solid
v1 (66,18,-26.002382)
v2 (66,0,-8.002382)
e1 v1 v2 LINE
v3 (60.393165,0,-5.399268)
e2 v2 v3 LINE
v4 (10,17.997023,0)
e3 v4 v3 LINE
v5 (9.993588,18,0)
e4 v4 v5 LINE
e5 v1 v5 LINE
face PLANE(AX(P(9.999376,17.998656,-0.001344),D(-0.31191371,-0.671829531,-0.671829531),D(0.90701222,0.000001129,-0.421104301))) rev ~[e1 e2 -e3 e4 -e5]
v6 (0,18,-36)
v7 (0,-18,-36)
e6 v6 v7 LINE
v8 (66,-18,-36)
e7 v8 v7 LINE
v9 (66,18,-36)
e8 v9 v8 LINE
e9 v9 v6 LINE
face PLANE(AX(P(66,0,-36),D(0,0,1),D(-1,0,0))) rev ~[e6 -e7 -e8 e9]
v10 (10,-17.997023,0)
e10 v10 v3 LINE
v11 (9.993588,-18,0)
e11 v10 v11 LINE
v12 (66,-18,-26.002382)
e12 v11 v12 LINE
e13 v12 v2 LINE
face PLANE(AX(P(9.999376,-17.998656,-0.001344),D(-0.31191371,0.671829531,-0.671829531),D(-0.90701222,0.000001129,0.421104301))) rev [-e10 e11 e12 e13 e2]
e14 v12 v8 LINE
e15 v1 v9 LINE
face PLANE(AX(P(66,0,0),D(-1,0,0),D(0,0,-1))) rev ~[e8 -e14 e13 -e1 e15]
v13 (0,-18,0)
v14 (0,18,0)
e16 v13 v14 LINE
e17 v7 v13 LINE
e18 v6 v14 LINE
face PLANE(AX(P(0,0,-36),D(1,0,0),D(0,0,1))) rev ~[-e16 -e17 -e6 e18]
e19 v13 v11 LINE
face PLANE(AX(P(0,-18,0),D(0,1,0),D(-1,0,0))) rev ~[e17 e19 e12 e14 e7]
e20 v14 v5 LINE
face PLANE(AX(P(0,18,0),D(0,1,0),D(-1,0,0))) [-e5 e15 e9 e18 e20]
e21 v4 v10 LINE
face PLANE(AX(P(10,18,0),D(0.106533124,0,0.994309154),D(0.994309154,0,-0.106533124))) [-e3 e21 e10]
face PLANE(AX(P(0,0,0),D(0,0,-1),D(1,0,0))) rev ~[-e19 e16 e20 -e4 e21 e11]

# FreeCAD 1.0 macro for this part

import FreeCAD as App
import Part
import Sketcher
from FreeCAD import Vector


def add_polygon(sketch, points):
    """Adds a closed chain of lines whose ends are joined by coincident constraints."""
    first, n = sketch.GeometryCount, len(points)
    for a, b in zip(points, points[1:] + points[:1]):
        sketch.addGeometry(Part.LineSegment(App.Vector(*a, 0), App.Vector(*b, 0)), False)
    for i in range(n):
        sketch.addConstraint(Sketcher.Constraint("Coincident", first + i, 2, first + (i + 1) % n, 1))

doc = App.newDocument("Part")
body = doc.addObject("PartDesign::Body", "Body")

# Sketch on XZ plane
sketch1 = body.newObject("Sketcher::SketchObject", "Sketch")
sketch1.AttachmentSupport = (doc.getObject("XZ_Plane"), [""])
sketch1.MapMode = "FlatFace"
add_polygon(sketch1, [(0, -36), (0, 0), (66, 0), (66, -36)])  # lines 0-3
sketch1.addConstraint([
    Sketcher.Constraint("Vertical", 0),
    Sketcher.Constraint("Horizontal", 1),
    Sketcher.Constraint("Vertical", 2),
    Sketcher.Constraint("Horizontal", 3),
    Sketcher.Constraint("Coincident", 0, 2, -1, 1),
    Sketcher.Constraint("DistanceX", 1, 1, 1, 2, 66.0),
    Sketcher.Constraint("DistanceY", 0, 1, 0, 2, 36.0),
])
pad1 = body.newObject("PartDesign::Pad", "Pad")
pad1.Profile = sketch1
pad1.Length = 36
pad1.Midplane = True

# Sketch on XZ plane
sketch2 = body.newObject("Sketcher::SketchObject", "Sketch001")
sketch2.AttachmentSupport = (doc.getObject("XZ_Plane"), [""])
sketch2.MapMode = "FlatFace"
sketch2.AttachmentOffset = App.Placement(Vector(0, 0, -18), App.Rotation())
add_polygon(sketch2, [(66, -6), (10, 0), (66, 0)])  # lines 0-2
sketch2.addConstraint([
    Sketcher.Constraint("Horizontal", 1),
    Sketcher.Constraint("Vertical", 2),
    Sketcher.Constraint("PointOnObject", 0, 2, -1),
    Sketcher.Constraint("DistanceX", -1, 1, 0, 2, 10.0),
    Sketcher.Constraint("DistanceX", 1, 1, 1, 2, 56.0),
    Sketcher.Constraint("DistanceY", 2, 2, 2, 1, 6.0),
])
pocket1 = body.newObject("PartDesign::Pocket", "Pocket")
pocket1.Profile = sketch2
pocket1.Length = 40
pocket1.Reversed = True

# Sketch on an angled plane
sketch3 = body.newObject("Sketcher::SketchObject", "Sketch002")
sketch3.Placement = App.Placement(Vector(10, 18, 0), App.Rotation(Vector(0.90701222, 0.000001129, -0.421104301), Vector(0.282911064, -0.740705799, 0.609357242), Vector(-0.31191371, -0.671829531, -0.671829531), "ZXY"))
add_polygon(sketch3, [(-15, 29), (-15, -12), (94, -12), (94, 29)])  # lines 0-3
sketch3.addConstraint([
    Sketcher.Constraint("Vertical", 0),
    Sketcher.Constraint("Horizontal", 1),
    Sketcher.Constraint("Vertical", 2),
    Sketcher.Constraint("Horizontal", 3),
    Sketcher.Constraint("DistanceX", 1, 1, 1, 2, 108.8713),
    Sketcher.Constraint("DistanceY", 0, 2, 0, 1, 41.1384),
    Sketcher.Constraint("DistanceX", -1, 1, 1, 2, 93.717),
    Sketcher.Constraint("DistanceY", 0, 2, -1, 1, 12.3218),
])
pocket2 = body.newObject("PartDesign::Pocket", "Pocket001")
pocket2.Profile = sketch3
pocket2.Length = 40
doc.recompute()

mirrored = body.newObject("PartDesign::Mirrored", "Mirrored")
mirrored.Originals = [pocket2]
mirrored.MirrorPlane = (doc.getObject("XZ_Plane"), [""])
body.Tip = mirrored

doc.recompute()
